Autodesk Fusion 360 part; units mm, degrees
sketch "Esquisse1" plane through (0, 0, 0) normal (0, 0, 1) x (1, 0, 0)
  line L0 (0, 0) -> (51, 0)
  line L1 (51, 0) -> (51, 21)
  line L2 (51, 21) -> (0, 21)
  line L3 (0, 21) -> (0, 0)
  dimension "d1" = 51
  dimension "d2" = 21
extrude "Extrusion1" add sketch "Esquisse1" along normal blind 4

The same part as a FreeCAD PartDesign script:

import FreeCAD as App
import Part
import Sketcher


def add_polygon(sketch, points):
    """Adds a closed chain of lines whose ends are joined by coincident constraints."""
    first, n = sketch.GeometryCount, len(points)
    for a, b in zip(points, points[1:] + points[:1]):
        sketch.addGeometry(Part.LineSegment(App.Vector(*a, 0), App.Vector(*b, 0)), False)
    for i in range(n):
        sketch.addConstraint(Sketcher.Constraint("Coincident", first + i, 2, first + (i + 1) % n, 1))

doc = App.newDocument("Part")
body = doc.addObject("PartDesign::Body", "Body")

# Sketch on XY plane
sketch1 = body.newObject("Sketcher::SketchObject", "Sketch")
sketch1.AttachmentSupport = (doc.getObject("XY_Plane"), [""])
sketch1.MapMode = "FlatFace"
add_polygon(sketch1, [(0, 21), (0, 0), (51, 0), (51, 21)])  # lines 0-3
sketch1.addConstraint(Sketcher.Constraint("Vertical", 0))
sketch1.addConstraint(Sketcher.Constraint("Horizontal", 1))
sketch1.addConstraint(Sketcher.Constraint("Vertical", 2))
sketch1.addConstraint(Sketcher.Constraint("Horizontal", 3))
sketch1.addConstraint(Sketcher.Constraint("Coincident", 0, 2, -1, 1))
sketch1.addConstraint(Sketcher.Constraint("DistanceX", 1, 1, 1, 2, 51.0))
sketch1.addConstraint(Sketcher.Constraint("DistanceY", 0, 2, 0, 1, 21.0))
pad1 = body.newObject("PartDesign::Pad", "Pad")
pad1.Profile = sketch1
pad1.Length = 4

doc.recompute()
